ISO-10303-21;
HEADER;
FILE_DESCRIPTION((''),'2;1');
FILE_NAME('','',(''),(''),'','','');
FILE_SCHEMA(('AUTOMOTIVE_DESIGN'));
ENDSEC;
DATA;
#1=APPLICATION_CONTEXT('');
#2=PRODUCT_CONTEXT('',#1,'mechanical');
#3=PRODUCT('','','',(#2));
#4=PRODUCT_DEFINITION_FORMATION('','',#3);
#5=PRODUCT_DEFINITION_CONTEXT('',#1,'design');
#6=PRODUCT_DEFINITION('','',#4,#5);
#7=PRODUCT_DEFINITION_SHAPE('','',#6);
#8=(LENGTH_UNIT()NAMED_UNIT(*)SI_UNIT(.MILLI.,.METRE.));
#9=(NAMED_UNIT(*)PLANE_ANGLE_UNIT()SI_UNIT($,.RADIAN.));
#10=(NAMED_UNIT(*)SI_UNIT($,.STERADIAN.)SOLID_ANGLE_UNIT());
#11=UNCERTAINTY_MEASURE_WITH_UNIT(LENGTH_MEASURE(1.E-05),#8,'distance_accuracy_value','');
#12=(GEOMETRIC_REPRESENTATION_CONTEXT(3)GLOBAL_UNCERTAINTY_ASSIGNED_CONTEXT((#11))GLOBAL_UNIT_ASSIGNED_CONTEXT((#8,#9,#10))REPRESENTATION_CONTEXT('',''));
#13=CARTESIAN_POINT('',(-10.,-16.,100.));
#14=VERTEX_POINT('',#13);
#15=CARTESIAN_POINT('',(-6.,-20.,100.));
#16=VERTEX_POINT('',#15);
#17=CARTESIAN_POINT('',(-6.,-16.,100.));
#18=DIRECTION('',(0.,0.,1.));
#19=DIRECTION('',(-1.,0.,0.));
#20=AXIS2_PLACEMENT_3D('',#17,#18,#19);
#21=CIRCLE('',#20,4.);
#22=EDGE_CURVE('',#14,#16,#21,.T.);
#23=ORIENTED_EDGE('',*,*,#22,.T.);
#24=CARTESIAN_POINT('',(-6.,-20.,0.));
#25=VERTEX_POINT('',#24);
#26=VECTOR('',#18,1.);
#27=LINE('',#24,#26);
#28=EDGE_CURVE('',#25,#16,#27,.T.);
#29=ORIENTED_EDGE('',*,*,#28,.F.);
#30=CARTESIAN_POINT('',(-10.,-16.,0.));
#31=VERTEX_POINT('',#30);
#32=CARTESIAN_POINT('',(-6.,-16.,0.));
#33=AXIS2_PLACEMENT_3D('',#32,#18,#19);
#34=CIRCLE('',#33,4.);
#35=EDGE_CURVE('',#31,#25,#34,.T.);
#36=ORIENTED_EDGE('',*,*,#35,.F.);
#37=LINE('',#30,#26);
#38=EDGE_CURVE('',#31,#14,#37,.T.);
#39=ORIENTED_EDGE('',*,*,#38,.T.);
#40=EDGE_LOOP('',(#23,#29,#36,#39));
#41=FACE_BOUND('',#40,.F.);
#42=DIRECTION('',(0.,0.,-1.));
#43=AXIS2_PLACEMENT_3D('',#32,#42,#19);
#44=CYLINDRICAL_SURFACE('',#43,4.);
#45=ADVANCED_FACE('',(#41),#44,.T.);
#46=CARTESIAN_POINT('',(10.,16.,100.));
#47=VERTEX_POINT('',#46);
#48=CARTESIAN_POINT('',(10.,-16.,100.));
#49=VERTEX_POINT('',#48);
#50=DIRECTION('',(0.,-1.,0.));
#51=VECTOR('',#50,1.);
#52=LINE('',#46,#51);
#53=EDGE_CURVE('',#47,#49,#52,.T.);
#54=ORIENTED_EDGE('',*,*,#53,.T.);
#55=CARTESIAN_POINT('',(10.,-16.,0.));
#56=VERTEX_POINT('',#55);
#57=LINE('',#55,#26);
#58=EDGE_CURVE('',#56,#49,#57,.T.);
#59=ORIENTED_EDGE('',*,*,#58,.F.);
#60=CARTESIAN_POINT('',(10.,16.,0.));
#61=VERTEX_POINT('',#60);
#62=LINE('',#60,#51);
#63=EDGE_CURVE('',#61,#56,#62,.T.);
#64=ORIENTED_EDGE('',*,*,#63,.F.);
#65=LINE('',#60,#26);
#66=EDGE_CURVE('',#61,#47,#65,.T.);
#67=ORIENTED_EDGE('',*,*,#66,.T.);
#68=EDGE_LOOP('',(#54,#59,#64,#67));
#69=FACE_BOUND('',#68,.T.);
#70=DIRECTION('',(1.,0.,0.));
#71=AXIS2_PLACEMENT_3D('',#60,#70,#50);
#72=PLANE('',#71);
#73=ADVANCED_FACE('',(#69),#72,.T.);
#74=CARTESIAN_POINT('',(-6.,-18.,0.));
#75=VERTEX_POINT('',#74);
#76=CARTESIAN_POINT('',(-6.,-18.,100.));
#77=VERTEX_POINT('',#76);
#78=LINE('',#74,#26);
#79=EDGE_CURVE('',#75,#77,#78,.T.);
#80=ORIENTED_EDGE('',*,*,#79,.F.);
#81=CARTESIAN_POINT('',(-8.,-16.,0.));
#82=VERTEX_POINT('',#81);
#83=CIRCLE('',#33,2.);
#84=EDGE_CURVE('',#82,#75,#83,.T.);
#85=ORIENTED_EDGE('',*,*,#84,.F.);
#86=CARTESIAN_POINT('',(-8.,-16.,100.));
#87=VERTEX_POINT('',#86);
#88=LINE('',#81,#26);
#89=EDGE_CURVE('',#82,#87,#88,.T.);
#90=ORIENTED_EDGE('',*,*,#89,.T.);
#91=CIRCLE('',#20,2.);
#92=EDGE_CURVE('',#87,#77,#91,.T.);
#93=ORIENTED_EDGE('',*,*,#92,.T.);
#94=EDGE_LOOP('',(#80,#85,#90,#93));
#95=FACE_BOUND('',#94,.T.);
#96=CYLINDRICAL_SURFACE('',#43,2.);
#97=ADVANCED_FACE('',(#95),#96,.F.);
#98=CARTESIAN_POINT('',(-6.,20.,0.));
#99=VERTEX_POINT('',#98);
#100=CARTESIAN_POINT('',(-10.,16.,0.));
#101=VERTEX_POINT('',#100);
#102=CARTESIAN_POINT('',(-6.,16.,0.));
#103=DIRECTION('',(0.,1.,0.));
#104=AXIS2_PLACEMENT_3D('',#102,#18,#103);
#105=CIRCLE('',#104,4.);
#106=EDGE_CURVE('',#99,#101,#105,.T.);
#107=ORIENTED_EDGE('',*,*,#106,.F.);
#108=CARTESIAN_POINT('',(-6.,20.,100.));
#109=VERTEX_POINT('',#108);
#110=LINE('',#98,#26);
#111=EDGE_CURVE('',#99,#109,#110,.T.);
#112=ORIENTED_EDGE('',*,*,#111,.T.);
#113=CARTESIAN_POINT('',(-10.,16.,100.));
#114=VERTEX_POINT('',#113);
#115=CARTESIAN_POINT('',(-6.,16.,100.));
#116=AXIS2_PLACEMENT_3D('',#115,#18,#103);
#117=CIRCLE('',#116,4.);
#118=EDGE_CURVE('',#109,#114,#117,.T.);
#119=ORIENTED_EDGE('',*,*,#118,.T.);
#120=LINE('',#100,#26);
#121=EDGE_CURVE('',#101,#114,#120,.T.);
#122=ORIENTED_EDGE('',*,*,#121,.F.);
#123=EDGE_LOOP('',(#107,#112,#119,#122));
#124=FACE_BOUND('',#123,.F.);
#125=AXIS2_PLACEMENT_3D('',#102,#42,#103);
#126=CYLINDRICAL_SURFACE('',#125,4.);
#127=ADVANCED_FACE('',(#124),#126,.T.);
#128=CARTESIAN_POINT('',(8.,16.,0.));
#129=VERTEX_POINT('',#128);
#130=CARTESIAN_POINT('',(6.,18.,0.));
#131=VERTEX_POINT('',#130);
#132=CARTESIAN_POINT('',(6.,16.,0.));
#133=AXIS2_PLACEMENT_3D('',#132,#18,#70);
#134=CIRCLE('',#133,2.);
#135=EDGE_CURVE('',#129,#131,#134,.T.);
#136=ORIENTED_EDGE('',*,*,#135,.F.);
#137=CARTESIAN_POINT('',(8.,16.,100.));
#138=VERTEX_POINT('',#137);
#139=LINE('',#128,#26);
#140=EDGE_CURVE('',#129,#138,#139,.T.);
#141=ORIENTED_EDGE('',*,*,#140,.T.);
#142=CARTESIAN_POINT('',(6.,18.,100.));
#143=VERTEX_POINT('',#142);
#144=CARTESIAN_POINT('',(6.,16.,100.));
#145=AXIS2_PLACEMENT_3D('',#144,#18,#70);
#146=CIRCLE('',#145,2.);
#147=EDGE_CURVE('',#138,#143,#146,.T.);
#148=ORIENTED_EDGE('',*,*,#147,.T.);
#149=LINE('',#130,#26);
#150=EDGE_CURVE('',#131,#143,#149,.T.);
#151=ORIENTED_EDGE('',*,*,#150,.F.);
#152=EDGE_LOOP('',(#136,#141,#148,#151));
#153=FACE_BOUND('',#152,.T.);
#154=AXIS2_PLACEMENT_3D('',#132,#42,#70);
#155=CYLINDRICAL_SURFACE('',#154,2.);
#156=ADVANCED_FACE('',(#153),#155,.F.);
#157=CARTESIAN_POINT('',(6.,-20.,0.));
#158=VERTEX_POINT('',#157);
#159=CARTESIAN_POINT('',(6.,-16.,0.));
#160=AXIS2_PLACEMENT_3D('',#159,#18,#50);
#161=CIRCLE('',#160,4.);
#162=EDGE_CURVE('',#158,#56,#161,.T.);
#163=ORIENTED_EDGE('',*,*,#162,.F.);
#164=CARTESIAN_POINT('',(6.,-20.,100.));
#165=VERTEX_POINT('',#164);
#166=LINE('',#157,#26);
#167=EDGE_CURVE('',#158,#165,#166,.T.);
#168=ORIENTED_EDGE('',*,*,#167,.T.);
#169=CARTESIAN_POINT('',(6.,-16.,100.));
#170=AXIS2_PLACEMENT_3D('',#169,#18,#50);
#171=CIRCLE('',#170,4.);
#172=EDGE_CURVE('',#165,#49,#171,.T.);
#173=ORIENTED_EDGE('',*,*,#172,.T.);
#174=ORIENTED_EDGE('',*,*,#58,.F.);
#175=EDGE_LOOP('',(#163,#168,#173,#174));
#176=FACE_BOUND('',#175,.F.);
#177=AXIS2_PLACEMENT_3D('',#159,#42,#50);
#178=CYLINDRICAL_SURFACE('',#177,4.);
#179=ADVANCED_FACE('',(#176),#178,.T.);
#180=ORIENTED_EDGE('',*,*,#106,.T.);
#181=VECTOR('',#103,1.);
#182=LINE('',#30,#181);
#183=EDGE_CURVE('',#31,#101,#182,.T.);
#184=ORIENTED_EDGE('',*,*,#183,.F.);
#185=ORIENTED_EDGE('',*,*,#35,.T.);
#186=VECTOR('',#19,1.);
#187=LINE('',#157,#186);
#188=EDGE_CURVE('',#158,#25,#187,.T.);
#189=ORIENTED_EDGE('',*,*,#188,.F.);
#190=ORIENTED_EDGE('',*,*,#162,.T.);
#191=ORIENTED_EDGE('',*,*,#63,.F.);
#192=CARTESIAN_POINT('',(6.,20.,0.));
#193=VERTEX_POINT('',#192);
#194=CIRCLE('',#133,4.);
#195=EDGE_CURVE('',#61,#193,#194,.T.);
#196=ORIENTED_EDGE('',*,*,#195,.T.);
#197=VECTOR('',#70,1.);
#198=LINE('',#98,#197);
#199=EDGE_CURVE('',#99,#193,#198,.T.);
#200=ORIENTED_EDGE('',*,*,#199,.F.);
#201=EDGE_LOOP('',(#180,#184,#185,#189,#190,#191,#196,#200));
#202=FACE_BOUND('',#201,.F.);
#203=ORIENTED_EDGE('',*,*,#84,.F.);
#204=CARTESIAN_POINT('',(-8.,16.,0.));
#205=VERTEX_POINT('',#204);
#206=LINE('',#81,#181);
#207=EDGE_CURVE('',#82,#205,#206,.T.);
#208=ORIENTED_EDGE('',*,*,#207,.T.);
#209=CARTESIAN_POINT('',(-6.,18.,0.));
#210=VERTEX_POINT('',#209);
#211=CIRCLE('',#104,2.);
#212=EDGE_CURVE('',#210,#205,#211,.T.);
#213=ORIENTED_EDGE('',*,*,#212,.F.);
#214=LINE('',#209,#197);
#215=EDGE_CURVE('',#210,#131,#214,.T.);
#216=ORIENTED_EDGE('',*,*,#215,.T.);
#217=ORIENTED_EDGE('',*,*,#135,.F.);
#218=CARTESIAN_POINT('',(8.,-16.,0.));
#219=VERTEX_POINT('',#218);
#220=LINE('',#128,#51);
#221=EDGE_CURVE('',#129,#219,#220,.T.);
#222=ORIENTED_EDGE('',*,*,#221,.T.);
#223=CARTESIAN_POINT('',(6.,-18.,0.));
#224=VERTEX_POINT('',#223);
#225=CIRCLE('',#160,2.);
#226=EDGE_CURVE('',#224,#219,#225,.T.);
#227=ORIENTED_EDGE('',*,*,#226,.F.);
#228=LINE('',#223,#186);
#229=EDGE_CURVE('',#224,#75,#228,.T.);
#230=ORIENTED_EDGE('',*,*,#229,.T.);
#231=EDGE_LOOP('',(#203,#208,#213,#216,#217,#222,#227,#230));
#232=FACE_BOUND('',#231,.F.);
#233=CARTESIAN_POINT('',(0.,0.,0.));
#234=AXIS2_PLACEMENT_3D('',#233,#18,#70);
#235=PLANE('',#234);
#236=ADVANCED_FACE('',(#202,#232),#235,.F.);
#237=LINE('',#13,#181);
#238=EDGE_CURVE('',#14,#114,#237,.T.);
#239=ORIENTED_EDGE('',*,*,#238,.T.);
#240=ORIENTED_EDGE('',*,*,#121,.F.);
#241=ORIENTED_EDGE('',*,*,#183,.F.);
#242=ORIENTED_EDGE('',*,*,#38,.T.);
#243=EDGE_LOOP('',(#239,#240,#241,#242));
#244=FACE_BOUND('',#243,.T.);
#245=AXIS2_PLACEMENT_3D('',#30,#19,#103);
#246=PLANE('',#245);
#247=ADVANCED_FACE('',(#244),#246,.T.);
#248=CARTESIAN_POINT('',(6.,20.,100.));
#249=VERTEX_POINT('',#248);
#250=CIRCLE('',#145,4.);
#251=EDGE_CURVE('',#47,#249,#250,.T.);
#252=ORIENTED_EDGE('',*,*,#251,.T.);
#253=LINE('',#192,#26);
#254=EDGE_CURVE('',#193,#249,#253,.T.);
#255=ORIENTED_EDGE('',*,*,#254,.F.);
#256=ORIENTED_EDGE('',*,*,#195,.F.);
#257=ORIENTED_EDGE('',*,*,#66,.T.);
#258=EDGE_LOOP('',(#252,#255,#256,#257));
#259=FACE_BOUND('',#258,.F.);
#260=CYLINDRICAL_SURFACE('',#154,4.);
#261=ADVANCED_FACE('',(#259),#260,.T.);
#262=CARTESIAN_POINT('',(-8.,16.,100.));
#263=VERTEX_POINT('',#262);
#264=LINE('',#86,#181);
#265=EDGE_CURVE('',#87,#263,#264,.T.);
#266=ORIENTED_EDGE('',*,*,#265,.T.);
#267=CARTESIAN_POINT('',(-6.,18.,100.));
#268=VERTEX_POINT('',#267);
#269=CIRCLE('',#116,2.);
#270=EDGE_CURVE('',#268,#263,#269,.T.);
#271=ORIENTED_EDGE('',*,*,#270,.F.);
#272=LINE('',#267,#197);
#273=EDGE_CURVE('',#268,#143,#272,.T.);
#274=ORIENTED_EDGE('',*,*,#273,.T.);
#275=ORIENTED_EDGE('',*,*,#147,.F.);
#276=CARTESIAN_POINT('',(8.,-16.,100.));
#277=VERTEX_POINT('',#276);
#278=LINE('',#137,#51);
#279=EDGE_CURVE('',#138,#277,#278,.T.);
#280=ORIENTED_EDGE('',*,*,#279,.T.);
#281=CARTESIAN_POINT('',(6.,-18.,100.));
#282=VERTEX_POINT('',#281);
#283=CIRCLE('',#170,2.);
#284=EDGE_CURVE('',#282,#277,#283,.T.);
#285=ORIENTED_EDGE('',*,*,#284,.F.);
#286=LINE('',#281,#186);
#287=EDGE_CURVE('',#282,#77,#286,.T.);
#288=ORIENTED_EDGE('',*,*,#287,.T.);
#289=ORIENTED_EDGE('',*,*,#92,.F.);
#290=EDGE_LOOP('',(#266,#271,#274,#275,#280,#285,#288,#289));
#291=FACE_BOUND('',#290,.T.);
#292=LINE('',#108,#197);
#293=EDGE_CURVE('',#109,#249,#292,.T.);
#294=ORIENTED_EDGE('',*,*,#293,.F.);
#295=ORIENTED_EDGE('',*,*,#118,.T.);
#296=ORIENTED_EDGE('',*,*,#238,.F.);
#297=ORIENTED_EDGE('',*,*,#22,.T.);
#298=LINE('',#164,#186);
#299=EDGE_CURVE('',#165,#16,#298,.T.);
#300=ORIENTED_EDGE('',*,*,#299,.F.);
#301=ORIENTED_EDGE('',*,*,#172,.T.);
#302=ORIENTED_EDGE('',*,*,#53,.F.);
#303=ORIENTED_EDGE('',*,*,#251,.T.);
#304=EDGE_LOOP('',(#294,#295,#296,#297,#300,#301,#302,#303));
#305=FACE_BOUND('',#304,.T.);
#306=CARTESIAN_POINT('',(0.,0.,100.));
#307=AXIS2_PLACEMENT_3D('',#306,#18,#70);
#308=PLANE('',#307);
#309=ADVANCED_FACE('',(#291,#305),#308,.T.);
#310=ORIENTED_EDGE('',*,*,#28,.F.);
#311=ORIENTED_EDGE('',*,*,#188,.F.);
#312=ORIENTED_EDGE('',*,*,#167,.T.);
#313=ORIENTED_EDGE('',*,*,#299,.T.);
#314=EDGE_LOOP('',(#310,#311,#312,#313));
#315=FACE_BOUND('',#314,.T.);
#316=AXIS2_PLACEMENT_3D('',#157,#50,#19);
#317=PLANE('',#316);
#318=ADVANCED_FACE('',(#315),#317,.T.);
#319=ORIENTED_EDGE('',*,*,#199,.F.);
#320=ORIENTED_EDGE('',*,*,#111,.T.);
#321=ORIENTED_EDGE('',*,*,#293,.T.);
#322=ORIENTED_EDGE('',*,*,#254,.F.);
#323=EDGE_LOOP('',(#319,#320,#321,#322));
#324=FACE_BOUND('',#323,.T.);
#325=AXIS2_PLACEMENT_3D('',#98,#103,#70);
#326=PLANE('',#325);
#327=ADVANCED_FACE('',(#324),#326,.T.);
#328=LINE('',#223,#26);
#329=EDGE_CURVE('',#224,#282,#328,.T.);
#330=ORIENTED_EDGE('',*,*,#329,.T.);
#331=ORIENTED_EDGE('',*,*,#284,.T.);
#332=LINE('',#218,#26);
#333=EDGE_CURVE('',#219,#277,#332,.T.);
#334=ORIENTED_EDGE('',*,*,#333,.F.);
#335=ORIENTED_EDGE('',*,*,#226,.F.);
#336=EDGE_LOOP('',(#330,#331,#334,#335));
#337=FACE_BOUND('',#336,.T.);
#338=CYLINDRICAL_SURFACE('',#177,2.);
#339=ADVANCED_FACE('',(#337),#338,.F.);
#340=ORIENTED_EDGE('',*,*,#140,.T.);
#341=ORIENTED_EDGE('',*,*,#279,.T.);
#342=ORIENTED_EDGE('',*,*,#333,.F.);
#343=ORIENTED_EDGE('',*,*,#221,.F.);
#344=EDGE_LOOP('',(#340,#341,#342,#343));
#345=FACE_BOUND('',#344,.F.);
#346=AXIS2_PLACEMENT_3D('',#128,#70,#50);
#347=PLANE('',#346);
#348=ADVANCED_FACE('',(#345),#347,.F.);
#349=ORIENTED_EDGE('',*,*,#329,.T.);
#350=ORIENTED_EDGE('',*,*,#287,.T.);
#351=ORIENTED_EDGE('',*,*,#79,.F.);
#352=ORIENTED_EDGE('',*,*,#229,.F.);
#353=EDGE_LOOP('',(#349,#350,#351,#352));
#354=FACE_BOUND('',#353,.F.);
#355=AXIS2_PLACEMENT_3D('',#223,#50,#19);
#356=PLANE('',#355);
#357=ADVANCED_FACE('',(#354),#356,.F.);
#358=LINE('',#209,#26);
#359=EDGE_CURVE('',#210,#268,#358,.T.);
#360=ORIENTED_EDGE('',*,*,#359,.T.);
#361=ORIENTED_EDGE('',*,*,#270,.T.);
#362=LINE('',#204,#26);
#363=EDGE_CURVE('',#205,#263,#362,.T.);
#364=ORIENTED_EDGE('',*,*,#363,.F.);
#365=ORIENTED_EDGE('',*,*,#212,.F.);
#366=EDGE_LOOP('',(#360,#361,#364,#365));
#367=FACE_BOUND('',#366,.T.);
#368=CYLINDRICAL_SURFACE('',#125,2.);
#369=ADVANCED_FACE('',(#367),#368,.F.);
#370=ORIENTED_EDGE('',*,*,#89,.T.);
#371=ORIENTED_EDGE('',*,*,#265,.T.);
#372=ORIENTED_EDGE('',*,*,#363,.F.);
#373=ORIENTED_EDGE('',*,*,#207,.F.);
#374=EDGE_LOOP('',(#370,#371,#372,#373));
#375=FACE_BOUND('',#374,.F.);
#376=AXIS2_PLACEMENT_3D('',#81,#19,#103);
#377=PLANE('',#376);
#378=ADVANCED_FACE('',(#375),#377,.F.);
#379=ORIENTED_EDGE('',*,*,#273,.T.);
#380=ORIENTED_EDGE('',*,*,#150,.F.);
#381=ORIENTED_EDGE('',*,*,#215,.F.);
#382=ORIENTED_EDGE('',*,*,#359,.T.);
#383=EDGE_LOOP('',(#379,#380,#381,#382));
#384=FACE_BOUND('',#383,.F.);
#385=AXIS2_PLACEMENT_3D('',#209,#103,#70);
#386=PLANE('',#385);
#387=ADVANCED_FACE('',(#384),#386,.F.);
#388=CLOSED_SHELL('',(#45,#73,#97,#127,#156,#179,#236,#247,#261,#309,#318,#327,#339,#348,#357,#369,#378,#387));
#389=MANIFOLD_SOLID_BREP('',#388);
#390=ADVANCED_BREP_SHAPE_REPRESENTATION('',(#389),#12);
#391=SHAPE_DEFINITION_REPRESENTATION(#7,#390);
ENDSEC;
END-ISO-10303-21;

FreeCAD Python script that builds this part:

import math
import FreeCAD as App
import Part
import Sketcher

V = App.Vector

doc = App.newDocument("Part")
body = doc.addObject("PartDesign::Body", "Body")

# Sketch on XY plane
sketch1 = doc.addObject("Sketcher::SketchObject", "Sketch")
body.addObject(sketch1)
sketch1.AttachmentSupport = (doc.XY_Plane, [""])
sketch1.MapMode = "FlatFace"
sketch1.addGeometry([
    Part.LineSegment(V(-10, 16, 0), V(-10, -16, 0)),  # 0
    Part.ArcOfCircle(Part.Circle(V(-6, -16, 0), V(0, 0, 1), 4), math.radians(180), math.radians(270)),  # 1
    Part.LineSegment(V(-6, -20, 0), V(6, -20, 0)),  # 2
    Part.ArcOfCircle(Part.Circle(V(6, -16, 0), V(0, 0, 1), 4), math.radians(-90), math.radians(0)),  # 3
    Part.LineSegment(V(10, -16, 0), V(10, 16, 0)),  # 4
    Part.ArcOfCircle(Part.Circle(V(6, 16, 0), V(0, 0, 1), 4), math.radians(0), math.radians(90)),  # 5
    Part.LineSegment(V(6, 20, 0), V(-6, 20, 0)),  # 6
    Part.ArcOfCircle(Part.Circle(V(-6, 16, 0), V(0, 0, 1), 4), math.radians(90), math.radians(180)),  # 7
    Part.ArcOfCircle(Part.Circle(V(-6, 16, 0), V(0, 0, 1), 2), math.radians(90), math.radians(180)),  # 8
    Part.LineSegment(V(-6, 18, 0), V(6, 18, 0)),  # 9
    Part.ArcOfCircle(Part.Circle(V(6, 16, 0), V(0, 0, 1), 2), math.radians(0), math.radians(90)),  # 10
    Part.LineSegment(V(8, 16, 0), V(8, -16, 0)),  # 11
    Part.ArcOfCircle(Part.Circle(V(6, -16, 0), V(0, 0, 1), 2), math.radians(-90), math.radians(0)),  # 12
    Part.LineSegment(V(6, -18, 0), V(-6, -18, 0)),  # 13
    Part.ArcOfCircle(Part.Circle(V(-6, -16, 0), V(0, 0, 1), 2), math.radians(180), math.radians(270)),  # 14
    Part.LineSegment(V(-8, -16, 0), V(-8, 16, 0)),  # 15
], False)
sketch1.addConstraint([
    Sketcher.Constraint("Tangent", 0, 2, 1, 1),
    Sketcher.Constraint("Tangent", 1, 2, 2, 1),
    Sketcher.Constraint("Tangent", 2, 2, 3, 1),
    Sketcher.Constraint("Tangent", 3, 2, 4, 1),
    Sketcher.Constraint("Tangent", 4, 2, 5, 1),
    Sketcher.Constraint("Tangent", 5, 2, 6, 1),
    Sketcher.Constraint("Tangent", 6, 2, 7, 1),
    Sketcher.Constraint("Tangent", 7, 2, 0, 1),
    Sketcher.Constraint("Tangent", 8, 1, 9, 1),
    Sketcher.Constraint("Tangent", 9, 2, 10, 2),
    Sketcher.Constraint("Tangent", 10, 1, 11, 1),
    Sketcher.Constraint("Tangent", 11, 2, 12, 2),
    Sketcher.Constraint("Tangent", 12, 1, 13, 1),
    Sketcher.Constraint("Tangent", 13, 2, 14, 2),
    Sketcher.Constraint("Tangent", 14, 1, 15, 1),
    Sketcher.Constraint("Tangent", 15, 2, 8, 2),
    Sketcher.Constraint("Vertical", 0),
    Sketcher.Constraint("Horizontal", 2),
    Sketcher.Constraint("Vertical", 4),
    Sketcher.Constraint("Horizontal", 6),
    Sketcher.Constraint("Horizontal", 9),
    Sketcher.Constraint("Vertical", 11),
    Sketcher.Constraint("Horizontal", 13),
    Sketcher.Constraint("Vertical", 15),
    Sketcher.Constraint("Coincident", 8, 3, 7, 3),
    Sketcher.Constraint("Coincident", 10, 3, 5, 3),
    Sketcher.Constraint("Coincident", 12, 3, 3, 3),
    Sketcher.Constraint("Equal", 1, 3),
    Sketcher.Constraint("Equal", 3, 5),
    Sketcher.Constraint("Equal", 5, 7),
    Sketcher.Constraint("Equal", 12, 14),
    Sketcher.Constraint("Symmetric", 1, 3, 5, 3, -1, 1),
    Sketcher.Constraint("Radius", 1, 4.0),
    Sketcher.Constraint("Radius", 8, 2.0),
    Sketcher.Constraint("DistanceX", 0, 2, -1, 1, 10.0),
    Sketcher.Constraint("DistanceY", 1, 2, -1, 1, 20.0),
])
pad1 = doc.addObject("PartDesign::Pad", "Pad")
body.addObject(pad1)
pad1.Profile = sketch1
pad1.Length = 100

doc.recompute()
